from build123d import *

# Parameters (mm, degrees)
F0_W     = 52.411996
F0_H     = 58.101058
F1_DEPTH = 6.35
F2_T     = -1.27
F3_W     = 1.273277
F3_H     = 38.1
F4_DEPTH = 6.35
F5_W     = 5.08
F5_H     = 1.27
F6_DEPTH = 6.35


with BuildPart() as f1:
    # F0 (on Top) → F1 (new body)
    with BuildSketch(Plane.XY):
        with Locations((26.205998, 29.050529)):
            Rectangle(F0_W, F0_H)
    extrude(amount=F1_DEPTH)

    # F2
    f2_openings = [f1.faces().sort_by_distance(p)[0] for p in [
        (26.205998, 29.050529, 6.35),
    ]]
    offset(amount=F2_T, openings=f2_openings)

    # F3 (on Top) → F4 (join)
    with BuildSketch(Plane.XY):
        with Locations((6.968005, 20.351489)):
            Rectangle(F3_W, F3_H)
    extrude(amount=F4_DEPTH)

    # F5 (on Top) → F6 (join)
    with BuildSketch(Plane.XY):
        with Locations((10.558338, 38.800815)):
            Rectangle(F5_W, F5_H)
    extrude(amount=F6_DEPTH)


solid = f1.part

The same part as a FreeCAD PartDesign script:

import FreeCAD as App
import Part
import Sketcher

V = App.Vector
Q = App.Units.Quantity


def faces_at(feature, points):
    """Names of the faces that lie closest to the given points."""
    faces = feature.Shape.Faces
    near = lambda p: min(range(len(faces)), key=lambda i: faces[i].distToShape(Part.Vertex(*p))[0])
    return sorted({f"Face{near(p) + 1}" for p in points})

doc = App.newDocument("Part")
body = doc.addObject("PartDesign::Body", "Body")

sketch1 = body.newObject("Sketcher::SketchObject", "Sketch")
sketch1.AttachmentSupport = (doc.getObject("XY_Plane"), [""])
sketch1.MapMode = "FlatFace"
sketch1.addGeometry([
    Part.LineSegment(V(0, 58.101058, 0), V(0, 0, 0)),
    Part.LineSegment(V(0, 0, 0), V(52.411996, 0, 0)),
    Part.LineSegment(V(52.411996, 0, 0), V(52.411996, 58.101058, 0)),
    Part.LineSegment(V(52.411996, 58.101058, 0), V(0, 58.101058, 0)),
], False)
sketch1.addConstraint([
    Sketcher.Constraint("Coincident", 0, 2, 1, 1),
    Sketcher.Constraint("Coincident", 1, 2, 2, 1),
    Sketcher.Constraint("Coincident", 2, 2, 3, 1),
    Sketcher.Constraint("Coincident", 3, 2, 0, 1),
    Sketcher.Constraint("Vertical", 0),
    Sketcher.Constraint("Horizontal", 1),
    Sketcher.Constraint("Vertical", 2),
    Sketcher.Constraint("Horizontal", 3),
    Sketcher.Constraint("Coincident", 0, 2, -1, 1),
    Sketcher.Constraint("DistanceY", 0, 2, 0, 1, Q("58.101058 mm")),
    Sketcher.Constraint("DistanceX", 1, 1, 1, 2, Q("52.411996 mm")),
])
pad1 = body.newObject("PartDesign::Pad", "Pad")
pad1.Profile = sketch1
pad1.Length = Q("0.25 in")
doc.recompute()

thickness = body.newObject("PartDesign::Thickness", "Thickness")
thickness.Base = (pad1, faces_at(pad1, [(26.206, 29.051, 6.35)]))
thickness.Value = Q("0.05 in")
thickness.Reversed = True
thickness.Join = "Arc"

sketch2 = body.newObject("Sketcher::SketchObject", "Sketch001")
sketch2.AttachmentSupport = (doc.getObject("XY_Plane"), [""])
sketch2.MapMode = "FlatFace"
sketch2.addGeometry([
    Part.LineSegment(V(6.331366, 39.401489, 0), V(6.331366, 1.301489, 0)),
    Part.LineSegment(V(6.331366, 1.301489, 0), V(7.604643, 1.301489, 0)),
    Part.LineSegment(V(7.604643, 1.301489, 0), V(7.604643, 39.401489, 0)),
    Part.LineSegment(V(7.604643, 39.401489, 0), V(6.331366, 39.401489, 0)),
], False)
sketch2.addConstraint([
    Sketcher.Constraint("Coincident", 0, 2, 1, 1),
    Sketcher.Constraint("Coincident", 1, 2, 2, 1),
    Sketcher.Constraint("Coincident", 2, 2, 3, 1),
    Sketcher.Constraint("Coincident", 3, 2, 0, 1),
    Sketcher.Constraint("Vertical", 0),
    Sketcher.Constraint("Horizontal", 1),
    Sketcher.Constraint("Vertical", 2),
    Sketcher.Constraint("Horizontal", 3),
    Sketcher.Constraint("DistanceY", 0, 2, 0, 1, Q("1.5 in")),
    Sketcher.Constraint("DistanceX", 1, 1, 1, 2, Q("1.273277 mm")),
    Sketcher.Constraint("DistanceY", -1, 1, 0, 2, Q("1.301489 mm")),
    Sketcher.Constraint("DistanceX", -1, 1, 0, 2, Q("6.331366 mm")),
])
pad2 = body.newObject("PartDesign::Pad", "Pad001")
pad2.Profile = sketch2
pad2.Length = Q("0.25 in")

sketch3 = body.newObject("Sketcher::SketchObject", "Sketch002")
sketch3.AttachmentSupport = (doc.getObject("XY_Plane"), [""])
sketch3.MapMode = "FlatFace"
sketch3.addGeometry([
    Part.LineSegment(V(8.018338, 39.435815, 0), V(8.018338, 38.165815, 0)),
    Part.LineSegment(V(8.018338, 38.165815, 0), V(13.098338, 38.165815, 0)),
    Part.LineSegment(V(13.098338, 38.165815, 0), V(13.098338, 39.435815, 0)),
    Part.LineSegment(V(13.098338, 39.435815, 0), V(8.018338, 39.435815, 0)),
], False)
sketch3.addConstraint([
    Sketcher.Constraint("Coincident", 0, 2, 1, 1),
    Sketcher.Constraint("Coincident", 1, 2, 2, 1),
    Sketcher.Constraint("Coincident", 2, 2, 3, 1),
    Sketcher.Constraint("Coincident", 3, 2, 0, 1),
    Sketcher.Constraint("Vertical", 0),
    Sketcher.Constraint("Horizontal", 1),
    Sketcher.Constraint("Vertical", 2),
    Sketcher.Constraint("Horizontal", 3),
    Sketcher.Constraint("DistanceX", 1, 1, 1, 2, Q("0.2 in")),
    Sketcher.Constraint("DistanceY", 0, 2, 0, 1, Q("0.05 in")),
    Sketcher.Constraint("DistanceX", -1, 1, 0, 2, Q("8.018338 mm")),
    Sketcher.Constraint("DistanceY", -1, 1, 0, 2, Q("38.165815 mm")),
])
pad3 = body.newObject("PartDesign::Pad", "Pad002")
pad3.Profile = sketch3
pad3.Length = Q("0.25 in")

doc.recompute()
